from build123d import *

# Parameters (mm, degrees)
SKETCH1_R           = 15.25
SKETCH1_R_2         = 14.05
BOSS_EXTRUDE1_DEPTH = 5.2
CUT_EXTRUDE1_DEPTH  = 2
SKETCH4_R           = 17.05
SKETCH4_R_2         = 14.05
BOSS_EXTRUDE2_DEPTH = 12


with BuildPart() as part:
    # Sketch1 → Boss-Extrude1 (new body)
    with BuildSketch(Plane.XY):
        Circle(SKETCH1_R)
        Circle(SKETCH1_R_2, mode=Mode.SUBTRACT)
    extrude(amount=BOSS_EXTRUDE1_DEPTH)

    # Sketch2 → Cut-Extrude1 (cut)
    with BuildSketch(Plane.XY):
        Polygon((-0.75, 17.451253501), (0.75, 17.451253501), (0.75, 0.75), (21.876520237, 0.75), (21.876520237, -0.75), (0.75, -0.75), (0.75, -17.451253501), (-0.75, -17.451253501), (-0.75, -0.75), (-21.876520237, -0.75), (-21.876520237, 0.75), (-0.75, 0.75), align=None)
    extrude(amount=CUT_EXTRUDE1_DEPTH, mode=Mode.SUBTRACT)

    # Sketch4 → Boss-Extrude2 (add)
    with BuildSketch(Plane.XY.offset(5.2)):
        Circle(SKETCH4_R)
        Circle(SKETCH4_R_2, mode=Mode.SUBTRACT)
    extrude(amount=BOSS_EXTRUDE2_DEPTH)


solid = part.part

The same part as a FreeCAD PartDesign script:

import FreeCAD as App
import Part
import Sketcher


def add_polygon(sketch, points):
    """Adds a closed chain of lines whose ends are joined by coincident constraints."""
    first, n = sketch.GeometryCount, len(points)
    for a, b in zip(points, points[1:] + points[:1]):
        sketch.addGeometry(Part.LineSegment(App.Vector(*a, 0), App.Vector(*b, 0)), False)
    for i in range(n):
        sketch.addConstraint(Sketcher.Constraint("Coincident", first + i, 2, first + (i + 1) % n, 1))

doc = App.newDocument("Part")
body = doc.addObject("PartDesign::Body", "Body")

# Sketch on XY plane
sketch1 = body.newObject("Sketcher::SketchObject", "Sketch")
sketch1.AttachmentSupport = (doc.getObject("XY_Plane"), [""])
sketch1.MapMode = "FlatFace"
sketch1.addGeometry(Part.Circle(App.Vector(0, 0, 0), App.Vector(0, 0, 1), 15), False)
sketch1.addGeometry(Part.Circle(App.Vector(0, 0, 0), App.Vector(0, 0, 1), 14), False)
sketch1.addConstraint(Sketcher.Constraint("Coincident", 0, 3, -1, 1))
sketch1.addConstraint(Sketcher.Constraint("Coincident", 1, 3, -1, 1))
sketch1.addConstraint(Sketcher.Constraint("Diameter", 0, 30.5))
sketch1.addConstraint(Sketcher.Constraint("Diameter", 1, 28.1))
pad1 = body.newObject("PartDesign::Pad", "Pad")
pad1.Profile = sketch1
pad1.Length = 5.2

# Sketch on XY plane
sketch2 = body.newObject("Sketcher::SketchObject", "Sketch001")
sketch2.AttachmentSupport = (doc.getObject("XY_Plane"), [""])
sketch2.MapMode = "FlatFace"
add_polygon(sketch2, [(0.8, 17.5), (-0.8, 17.5), (-0.8, 0.8), (-21.9, 0.8), (-21.9, -0.8), (-0.8, -0.8), (-0.8, -17.5), (0.8, -17.5), (0.8, -0.8), (21.9, -0.8), (21.9, 0.8), (0.8, 0.8)])  # lines 0-11
sketch2.addConstraint(Sketcher.Constraint("Horizontal", 0))
sketch2.addConstraint(Sketcher.Constraint("Vertical", 1))
sketch2.addConstraint(Sketcher.Constraint("Horizontal", 2))
sketch2.addConstraint(Sketcher.Constraint("Vertical", 3))
sketch2.addConstraint(Sketcher.Constraint("Horizontal", 4))
sketch2.addConstraint(Sketcher.Constraint("Vertical", 5))
sketch2.addConstraint(Sketcher.Constraint("Horizontal", 6))
sketch2.addConstraint(Sketcher.Constraint("Vertical", 7))
sketch2.addConstraint(Sketcher.Constraint("Horizontal", 8))
sketch2.addConstraint(Sketcher.Constraint("Vertical", 9))
sketch2.addConstraint(Sketcher.Constraint("Horizontal", 10))
sketch2.addConstraint(Sketcher.Constraint("Vertical", 11))
sketch2.addConstraint(Sketcher.Constraint("Symmetric", 0, 2, 6, 2, -1, 1))
sketch2.addConstraint(Sketcher.Constraint("Symmetric", 2, 2, 8, 2, -1, 1))
sketch2.addConstraint(Sketcher.Constraint("Symmetric", 4, 2, 10, 2, -1, 1))
sketch2.addConstraint(Sketcher.Constraint("Symmetric", 4, 2, 7, 2, -2))
sketch2.addConstraint(Sketcher.Constraint("Equal", 6, 3))
sketch2.addConstraint(Sketcher.Constraint("DistanceX", 0, 2, 0, 1, 1.5))
sketch2.addConstraint(Sketcher.Constraint("DistanceX", 2, 2, 2, 1, 21.12652))
sketch2.addConstraint(Sketcher.Constraint("DistanceY", 1, 2, 1, 1, 16.701254))
pocket1 = body.newObject("PartDesign::Pocket", "Pocket")
pocket1.Profile = sketch2
pocket1.Length = 2
pocket1.Reversed = True

# Sketch on XY plane
sketch3 = body.newObject("Sketcher::SketchObject", "Sketch002")
sketch3.AttachmentSupport = (doc.getObject("XY_Plane"), [""])
sketch3.MapMode = "FlatFace"
sketch3.AttachmentOffset = App.Placement(App.Vector(0, 0, 5.2), App.Rotation())
sketch3.addGeometry(Part.Circle(App.Vector(0, 0, 0), App.Vector(0, 0, 1), 17), False)
sketch3.addGeometry(Part.Circle(App.Vector(0, 0, 0), App.Vector(0, 0, 1), 14), False)
sketch3.addConstraint(Sketcher.Constraint("Coincident", 0, 3, -1, 1))
sketch3.addConstraint(Sketcher.Constraint("Coincident", 1, 3, -1, 1))
sketch3.addConstraint(Sketcher.Constraint("Diameter", 0, 34.1))
sketch3.addConstraint(Sketcher.Constraint("Diameter", 1, 28.1))
pad2 = body.newObject("PartDesign::Pad", "Pad001")
pad2.Profile = sketch3
pad2.Length = 12

doc.recompute()
